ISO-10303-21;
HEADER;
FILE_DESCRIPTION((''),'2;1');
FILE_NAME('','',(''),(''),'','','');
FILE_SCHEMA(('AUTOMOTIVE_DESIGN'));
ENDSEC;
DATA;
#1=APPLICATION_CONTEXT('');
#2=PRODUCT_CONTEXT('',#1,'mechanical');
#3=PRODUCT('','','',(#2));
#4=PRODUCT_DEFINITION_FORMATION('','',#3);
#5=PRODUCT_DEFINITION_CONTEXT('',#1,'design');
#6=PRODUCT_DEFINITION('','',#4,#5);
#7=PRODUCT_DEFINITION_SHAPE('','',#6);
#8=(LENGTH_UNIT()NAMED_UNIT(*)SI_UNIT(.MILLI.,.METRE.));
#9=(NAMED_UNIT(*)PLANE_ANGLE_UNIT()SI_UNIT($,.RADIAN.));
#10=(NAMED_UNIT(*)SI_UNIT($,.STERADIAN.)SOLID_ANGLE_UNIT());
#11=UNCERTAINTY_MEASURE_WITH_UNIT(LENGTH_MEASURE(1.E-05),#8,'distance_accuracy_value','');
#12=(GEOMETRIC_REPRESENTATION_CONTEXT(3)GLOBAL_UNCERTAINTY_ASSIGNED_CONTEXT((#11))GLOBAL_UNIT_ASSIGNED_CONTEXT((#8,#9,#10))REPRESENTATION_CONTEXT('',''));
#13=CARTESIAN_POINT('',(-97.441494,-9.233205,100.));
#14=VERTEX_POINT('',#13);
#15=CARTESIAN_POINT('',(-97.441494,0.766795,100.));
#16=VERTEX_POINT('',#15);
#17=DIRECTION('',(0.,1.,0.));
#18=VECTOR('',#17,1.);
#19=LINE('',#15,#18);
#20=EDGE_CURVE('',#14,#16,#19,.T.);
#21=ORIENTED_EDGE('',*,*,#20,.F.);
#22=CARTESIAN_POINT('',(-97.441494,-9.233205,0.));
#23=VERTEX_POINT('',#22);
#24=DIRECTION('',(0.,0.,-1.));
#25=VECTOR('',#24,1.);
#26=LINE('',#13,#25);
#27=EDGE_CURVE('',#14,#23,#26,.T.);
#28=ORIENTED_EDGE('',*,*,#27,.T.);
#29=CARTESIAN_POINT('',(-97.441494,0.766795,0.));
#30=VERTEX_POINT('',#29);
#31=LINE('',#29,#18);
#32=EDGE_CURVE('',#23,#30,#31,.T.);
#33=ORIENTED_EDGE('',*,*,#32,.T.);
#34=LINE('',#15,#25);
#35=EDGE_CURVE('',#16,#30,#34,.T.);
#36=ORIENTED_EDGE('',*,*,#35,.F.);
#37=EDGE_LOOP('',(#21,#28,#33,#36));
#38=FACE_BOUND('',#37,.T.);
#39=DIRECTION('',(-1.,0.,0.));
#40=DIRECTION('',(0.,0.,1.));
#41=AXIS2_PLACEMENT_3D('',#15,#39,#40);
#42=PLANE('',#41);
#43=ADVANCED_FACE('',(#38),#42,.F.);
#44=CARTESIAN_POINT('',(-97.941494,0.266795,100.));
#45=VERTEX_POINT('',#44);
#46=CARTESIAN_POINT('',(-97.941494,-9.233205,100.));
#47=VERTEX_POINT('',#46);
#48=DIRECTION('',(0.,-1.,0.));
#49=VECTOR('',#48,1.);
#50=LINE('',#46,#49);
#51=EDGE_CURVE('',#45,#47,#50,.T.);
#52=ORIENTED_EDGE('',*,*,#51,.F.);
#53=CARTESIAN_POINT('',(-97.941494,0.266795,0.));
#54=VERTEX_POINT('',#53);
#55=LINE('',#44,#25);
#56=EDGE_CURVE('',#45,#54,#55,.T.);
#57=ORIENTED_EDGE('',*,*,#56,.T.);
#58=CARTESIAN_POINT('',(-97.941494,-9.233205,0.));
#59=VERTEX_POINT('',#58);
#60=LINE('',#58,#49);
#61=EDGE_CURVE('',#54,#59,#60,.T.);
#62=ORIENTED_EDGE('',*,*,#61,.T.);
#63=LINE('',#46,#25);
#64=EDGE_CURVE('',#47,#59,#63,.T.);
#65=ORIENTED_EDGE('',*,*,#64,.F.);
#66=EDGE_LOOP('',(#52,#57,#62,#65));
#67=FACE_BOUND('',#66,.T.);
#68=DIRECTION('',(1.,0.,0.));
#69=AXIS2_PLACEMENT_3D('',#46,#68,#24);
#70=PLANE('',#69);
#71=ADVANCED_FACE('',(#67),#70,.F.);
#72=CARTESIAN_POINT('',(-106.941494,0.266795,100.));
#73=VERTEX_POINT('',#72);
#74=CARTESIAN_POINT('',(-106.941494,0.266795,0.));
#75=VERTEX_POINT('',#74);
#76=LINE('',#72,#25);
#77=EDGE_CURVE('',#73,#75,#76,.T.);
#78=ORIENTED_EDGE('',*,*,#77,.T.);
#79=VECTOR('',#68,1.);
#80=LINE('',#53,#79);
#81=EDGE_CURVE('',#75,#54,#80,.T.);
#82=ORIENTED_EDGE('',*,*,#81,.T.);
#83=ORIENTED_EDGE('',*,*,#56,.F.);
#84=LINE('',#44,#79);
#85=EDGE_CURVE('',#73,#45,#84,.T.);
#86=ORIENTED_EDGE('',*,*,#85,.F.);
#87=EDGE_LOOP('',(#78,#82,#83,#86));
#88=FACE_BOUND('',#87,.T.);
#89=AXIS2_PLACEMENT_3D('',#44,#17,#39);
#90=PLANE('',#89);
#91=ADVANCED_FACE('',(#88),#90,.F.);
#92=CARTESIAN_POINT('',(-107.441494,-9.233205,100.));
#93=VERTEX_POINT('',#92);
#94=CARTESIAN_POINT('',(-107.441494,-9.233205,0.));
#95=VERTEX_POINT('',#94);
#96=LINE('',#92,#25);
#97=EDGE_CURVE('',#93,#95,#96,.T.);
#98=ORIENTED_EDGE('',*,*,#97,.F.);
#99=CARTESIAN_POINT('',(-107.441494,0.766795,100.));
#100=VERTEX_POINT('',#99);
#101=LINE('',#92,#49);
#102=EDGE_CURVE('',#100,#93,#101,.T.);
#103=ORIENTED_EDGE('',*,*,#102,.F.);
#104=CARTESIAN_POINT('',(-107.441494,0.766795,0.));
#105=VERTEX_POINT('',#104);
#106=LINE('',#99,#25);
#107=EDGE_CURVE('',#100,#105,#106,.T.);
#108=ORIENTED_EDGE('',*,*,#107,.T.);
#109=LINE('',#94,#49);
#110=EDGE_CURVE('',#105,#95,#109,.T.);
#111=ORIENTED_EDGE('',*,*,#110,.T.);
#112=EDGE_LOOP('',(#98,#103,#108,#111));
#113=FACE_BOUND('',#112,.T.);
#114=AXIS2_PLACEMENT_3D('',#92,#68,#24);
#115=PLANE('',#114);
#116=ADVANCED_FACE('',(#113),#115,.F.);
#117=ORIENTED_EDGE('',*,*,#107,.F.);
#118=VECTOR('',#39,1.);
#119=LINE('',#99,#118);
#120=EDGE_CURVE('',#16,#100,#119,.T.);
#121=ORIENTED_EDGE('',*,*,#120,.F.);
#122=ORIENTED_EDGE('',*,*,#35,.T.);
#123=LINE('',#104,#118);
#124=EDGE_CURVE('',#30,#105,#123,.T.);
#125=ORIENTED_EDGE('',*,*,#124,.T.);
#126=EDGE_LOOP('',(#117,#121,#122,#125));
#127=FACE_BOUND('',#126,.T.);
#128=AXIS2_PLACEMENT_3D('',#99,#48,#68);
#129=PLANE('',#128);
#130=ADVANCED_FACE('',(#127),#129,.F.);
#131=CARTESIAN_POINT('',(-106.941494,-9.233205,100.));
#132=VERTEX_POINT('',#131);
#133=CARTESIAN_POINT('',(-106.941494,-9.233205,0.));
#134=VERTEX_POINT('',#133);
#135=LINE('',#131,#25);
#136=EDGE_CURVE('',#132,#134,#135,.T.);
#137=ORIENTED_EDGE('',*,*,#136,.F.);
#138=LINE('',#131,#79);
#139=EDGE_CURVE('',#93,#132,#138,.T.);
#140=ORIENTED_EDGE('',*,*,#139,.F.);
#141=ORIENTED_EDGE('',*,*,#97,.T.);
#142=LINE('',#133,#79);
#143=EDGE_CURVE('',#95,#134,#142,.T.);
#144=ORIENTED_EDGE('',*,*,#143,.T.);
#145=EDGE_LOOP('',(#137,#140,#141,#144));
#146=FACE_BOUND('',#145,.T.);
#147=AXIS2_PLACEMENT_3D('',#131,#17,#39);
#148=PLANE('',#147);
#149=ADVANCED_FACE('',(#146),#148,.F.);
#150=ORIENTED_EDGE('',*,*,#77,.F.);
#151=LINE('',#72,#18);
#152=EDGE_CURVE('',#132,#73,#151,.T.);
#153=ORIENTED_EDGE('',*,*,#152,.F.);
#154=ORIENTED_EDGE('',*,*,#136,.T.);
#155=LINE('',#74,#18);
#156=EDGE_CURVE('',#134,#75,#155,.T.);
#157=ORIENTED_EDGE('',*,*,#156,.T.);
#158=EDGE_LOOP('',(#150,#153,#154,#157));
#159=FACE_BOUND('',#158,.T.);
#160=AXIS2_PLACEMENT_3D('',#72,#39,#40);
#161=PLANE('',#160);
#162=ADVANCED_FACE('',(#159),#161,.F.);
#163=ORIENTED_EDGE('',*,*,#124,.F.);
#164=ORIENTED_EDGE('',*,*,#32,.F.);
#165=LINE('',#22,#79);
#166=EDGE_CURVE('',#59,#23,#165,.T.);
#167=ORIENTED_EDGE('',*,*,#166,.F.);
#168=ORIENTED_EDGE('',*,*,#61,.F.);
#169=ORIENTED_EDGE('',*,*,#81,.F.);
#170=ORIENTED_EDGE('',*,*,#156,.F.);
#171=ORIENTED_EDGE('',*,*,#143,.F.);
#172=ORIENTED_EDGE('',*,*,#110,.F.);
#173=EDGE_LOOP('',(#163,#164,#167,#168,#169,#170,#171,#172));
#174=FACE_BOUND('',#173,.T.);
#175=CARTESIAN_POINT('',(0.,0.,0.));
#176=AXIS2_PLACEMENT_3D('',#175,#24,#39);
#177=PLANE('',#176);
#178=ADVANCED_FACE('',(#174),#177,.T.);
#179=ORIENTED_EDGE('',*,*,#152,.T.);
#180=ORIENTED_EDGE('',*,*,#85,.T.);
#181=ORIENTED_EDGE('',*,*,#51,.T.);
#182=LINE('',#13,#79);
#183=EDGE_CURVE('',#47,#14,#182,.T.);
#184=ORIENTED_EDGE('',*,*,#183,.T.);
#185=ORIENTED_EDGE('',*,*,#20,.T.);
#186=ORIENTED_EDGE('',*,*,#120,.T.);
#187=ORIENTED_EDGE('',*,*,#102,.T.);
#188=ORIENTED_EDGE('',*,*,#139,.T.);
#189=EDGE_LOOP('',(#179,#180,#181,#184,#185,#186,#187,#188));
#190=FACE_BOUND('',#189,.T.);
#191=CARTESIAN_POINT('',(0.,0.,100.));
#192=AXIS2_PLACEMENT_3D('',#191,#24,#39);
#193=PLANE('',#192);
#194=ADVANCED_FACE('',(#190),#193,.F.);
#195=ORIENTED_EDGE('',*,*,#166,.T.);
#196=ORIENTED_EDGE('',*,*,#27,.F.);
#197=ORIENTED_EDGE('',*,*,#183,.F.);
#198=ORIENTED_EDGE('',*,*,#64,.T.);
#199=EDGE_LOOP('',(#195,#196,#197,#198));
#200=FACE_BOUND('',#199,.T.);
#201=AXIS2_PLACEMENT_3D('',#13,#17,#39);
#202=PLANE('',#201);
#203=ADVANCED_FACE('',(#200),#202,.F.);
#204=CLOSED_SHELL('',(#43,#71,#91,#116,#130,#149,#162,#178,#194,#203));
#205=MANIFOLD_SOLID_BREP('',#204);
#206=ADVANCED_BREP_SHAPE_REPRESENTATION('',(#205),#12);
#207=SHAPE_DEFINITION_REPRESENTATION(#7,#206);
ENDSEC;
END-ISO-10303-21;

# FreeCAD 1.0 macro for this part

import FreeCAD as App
import Part
import Sketcher

doc = App.newDocument("Part")
body = doc.addObject("PartDesign::Body", "Body")

# Sketch on XY plane
sketch1 = doc.addObject("Sketcher::SketchObject", "Sketch")
body.addObject(sketch1)
sketch1.AttachmentSupport = (doc.XY_Plane, [""])
sketch1.MapMode = "FlatFace"
sketch1.addGeometry(Part.LineSegment(App.Vector(-107.4, 0.8, 0), App.Vector(-107.4, -9.2, 0)), False)
sketch1.addGeometry(Part.LineSegment(App.Vector(-107.4, -9.2, 0), App.Vector(-106.9, -9.2, 0)), False)
sketch1.addGeometry(Part.LineSegment(App.Vector(-106.9, -9.2, 0), App.Vector(-106.9, 0.3, 0)), False)
sketch1.addGeometry(Part.LineSegment(App.Vector(-106.9, 0.3, 0), App.Vector(-97.9, 0.3, 0)), False)
sketch1.addGeometry(Part.LineSegment(App.Vector(-97.9, 0.3, 0), App.Vector(-97.9, -9.2, 0)), False)
sketch1.addGeometry(Part.LineSegment(App.Vector(-97.9, -9.2, 0), App.Vector(-97.4, -9.2, 0)), False)
sketch1.addGeometry(Part.LineSegment(App.Vector(-97.4, -9.2, 0), App.Vector(-97.4, 0.8, 0)), False)
sketch1.addGeometry(Part.LineSegment(App.Vector(-97.4, 0.8, 0), App.Vector(-107.4, 0.8, 0)), False)
sketch1.addConstraint(Sketcher.Constraint("Coincident", 0, 2, 1, 1))
sketch1.addConstraint(Sketcher.Constraint("Coincident", 1, 2, 2, 1))
sketch1.addConstraint(Sketcher.Constraint("Coincident", 2, 2, 3, 1))
sketch1.addConstraint(Sketcher.Constraint("Coincident", 3, 2, 4, 1))
sketch1.addConstraint(Sketcher.Constraint("Coincident", 4, 2, 5, 1))
sketch1.addConstraint(Sketcher.Constraint("Coincident", 5, 2, 6, 1))
sketch1.addConstraint(Sketcher.Constraint("Coincident", 6, 2, 7, 1))
sketch1.addConstraint(Sketcher.Constraint("Coincident", 7, 2, 0, 1))
sketch1.addConstraint(Sketcher.Constraint("Vertical", 0))
sketch1.addConstraint(Sketcher.Constraint("Horizontal", 1))
sketch1.addConstraint(Sketcher.Constraint("Vertical", 2))
sketch1.addConstraint(Sketcher.Constraint("Horizontal", 3))
sketch1.addConstraint(Sketcher.Constraint("Vertical", 4))
sketch1.addConstraint(Sketcher.Constraint("Horizontal", 5))
sketch1.addConstraint(Sketcher.Constraint("Vertical", 6))
sketch1.addConstraint(Sketcher.Constraint("Horizontal", 7))
sketch1.addConstraint(Sketcher.Constraint("Horizontal", 1, 2, 4, 2))
sketch1.addConstraint(Sketcher.Constraint("Equal", 1, 5))
sketch1.addConstraint(Sketcher.Constraint("Equal", 7, 0))
sketch1.addConstraint(Sketcher.Constraint("DistanceX", 3, 1, 3, 2, 9.0))
sketch1.addConstraint(Sketcher.Constraint("DistanceX", 7, 2, 7, 1, 10.0))
sketch1.addConstraint(Sketcher.Constraint("DistanceY", 2, 1, 2, 2, 9.5))
sketch1.addConstraint(Sketcher.Constraint("DistanceX", 0, 2, -1, 1, 107.441494))
sketch1.addConstraint(Sketcher.Constraint("DistanceY", 0, 2, -1, 1, 9.233205))
pad1 = doc.addObject("PartDesign::Pad", "Pad")
body.addObject(pad1)
pad1.Profile = sketch1
pad1.Length = 100

doc.recompute()
